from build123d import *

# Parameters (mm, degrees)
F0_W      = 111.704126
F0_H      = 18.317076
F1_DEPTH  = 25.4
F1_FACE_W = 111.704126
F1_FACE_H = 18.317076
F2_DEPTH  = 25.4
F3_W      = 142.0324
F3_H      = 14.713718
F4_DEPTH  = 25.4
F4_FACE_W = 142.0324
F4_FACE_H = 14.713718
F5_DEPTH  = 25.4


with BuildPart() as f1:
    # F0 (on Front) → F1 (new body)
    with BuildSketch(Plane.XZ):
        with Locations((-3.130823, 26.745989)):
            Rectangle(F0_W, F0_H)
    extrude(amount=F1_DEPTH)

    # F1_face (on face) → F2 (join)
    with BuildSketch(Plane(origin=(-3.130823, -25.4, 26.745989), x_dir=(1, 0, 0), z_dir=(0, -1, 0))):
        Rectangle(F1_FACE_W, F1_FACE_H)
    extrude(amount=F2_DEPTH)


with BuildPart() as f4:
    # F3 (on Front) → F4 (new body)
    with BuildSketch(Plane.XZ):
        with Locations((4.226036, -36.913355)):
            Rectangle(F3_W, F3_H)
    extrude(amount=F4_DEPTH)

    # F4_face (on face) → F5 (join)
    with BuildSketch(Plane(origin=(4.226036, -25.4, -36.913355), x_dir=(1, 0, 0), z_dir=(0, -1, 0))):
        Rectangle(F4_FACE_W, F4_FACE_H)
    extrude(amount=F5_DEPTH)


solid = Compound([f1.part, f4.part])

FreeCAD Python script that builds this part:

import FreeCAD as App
import Part
import Sketcher
Q = App.Units.Quantity


def add_polygon(sketch, points):
    """Adds a closed chain of lines whose ends are joined by coincident constraints."""
    first, n = sketch.GeometryCount, len(points)
    for a, b in zip(points, points[1:] + points[:1]):
        sketch.addGeometry(Part.LineSegment(App.Vector(*a, 0), App.Vector(*b, 0)), False)
    for i in range(n):
        sketch.addConstraint(Sketcher.Constraint("Coincident", first + i, 2, first + (i + 1) % n, 1))

doc = App.newDocument("Part")
body = doc.addObject("PartDesign::Body", "Body")

# Sketch on XZ plane
sketch1 = doc.addObject("Sketcher::SketchObject", "Sketch")
body.addObject(sketch1)
sketch1.AttachmentSupport = (doc.XZ_Plane, [""])
sketch1.MapMode = "FlatFace"
add_polygon(sketch1, [(-59, 36), (-59, 18), (53, 18), (53, 36)])  # lines 0-3
sketch1.addConstraint(Sketcher.Constraint("Vertical", 0))
sketch1.addConstraint(Sketcher.Constraint("Horizontal", 1))
sketch1.addConstraint(Sketcher.Constraint("Vertical", 2))
sketch1.addConstraint(Sketcher.Constraint("Horizontal", 3))
sketch1.addConstraint(Sketcher.Constraint("DistanceX", 1, 1, 1, 2, 111.704126))
sketch1.addConstraint(Sketcher.Constraint("DistanceY", 0, 2, 0, 1, 18.317076))
sketch1.addConstraint(Sketcher.Constraint("DistanceY", -1, 1, 0, 2, 17.587451))
sketch1.addConstraint(Sketcher.Constraint("DistanceX", -1, 1, 1, 2, 52.72124))
pad1 = doc.addObject("PartDesign::Pad", "Pad")
body.addObject(pad1)
pad1.Profile = sketch1
pad1.Length = Q("1 in")

# Sketch on XZ plane
sketch2 = doc.addObject("Sketcher::SketchObject", "Sketch001")
body.addObject(sketch2)
sketch2.AttachmentSupport = (doc.XZ_Plane, [""])
sketch2.MapMode = "FlatFace"
sketch2.AttachmentOffset = App.Placement(App.Vector(0, 0, 1 * 25.4), App.Rotation())
add_polygon(sketch2, [(-59, 36), (-59, 18), (53, 18), (53, 36)])  # lines 0-3
sketch2.addConstraint(Sketcher.Constraint("Vertical", 0))
sketch2.addConstraint(Sketcher.Constraint("Horizontal", 1))
sketch2.addConstraint(Sketcher.Constraint("Vertical", 2))
sketch2.addConstraint(Sketcher.Constraint("Horizontal", 3))
sketch2.addConstraint(Sketcher.Constraint("DistanceX", 1, 1, 1, 2, 111.704126))
sketch2.addConstraint(Sketcher.Constraint("DistanceY", 0, 2, 0, 1, 18.317076))
sketch2.addConstraint(Sketcher.Constraint("DistanceY", -1, 1, 0, 2, 17.587451))
sketch2.addConstraint(Sketcher.Constraint("DistanceX", -1, 1, 1, 2, 52.72124))
pad2 = doc.addObject("PartDesign::Pad", "Pad001")
body.addObject(pad2)
pad2.Profile = sketch2
pad2.Length = Q("1 in")
body2 = doc.addObject("PartDesign::Body", "Body001")

# Sketch on XZ plane
sketch3 = doc.addObject("Sketcher::SketchObject", "Sketch002")
body2.addObject(sketch3)
sketch3.AttachmentSupport = (doc.getObject("XZ_Plane001"), [""])
sketch3.MapMode = "FlatFace"
add_polygon(sketch3, [(-67, -30), (-67, -44), (75, -44), (75, -30)])  # lines 0-3
sketch3.addConstraint(Sketcher.Constraint("Vertical", 0))
sketch3.addConstraint(Sketcher.Constraint("Horizontal", 1))
sketch3.addConstraint(Sketcher.Constraint("Vertical", 2))
sketch3.addConstraint(Sketcher.Constraint("Horizontal", 3))
sketch3.addConstraint(Sketcher.Constraint("DistanceX", 1, 1, 1, 2, 142.0324))
sketch3.addConstraint(Sketcher.Constraint("DistanceY", 0, 2, 0, 1, 14.713718))
sketch3.addConstraint(Sketcher.Constraint("DistanceX", 0, 2, -1, 1, 66.790164))
sketch3.addConstraint(Sketcher.Constraint("DistanceY", 0, 2, -1, 1, 44.270214))
pad3 = doc.addObject("PartDesign::Pad", "Pad002")
body2.addObject(pad3)
pad3.Profile = sketch3
pad3.Length = Q("1 in")

# Sketch on XZ plane
sketch4 = doc.addObject("Sketcher::SketchObject", "Sketch003")
body2.addObject(sketch4)
sketch4.AttachmentSupport = (doc.getObject("XZ_Plane001"), [""])
sketch4.MapMode = "FlatFace"
sketch4.AttachmentOffset = App.Placement(App.Vector(0, 0, 1 * 25.4), App.Rotation())
add_polygon(sketch4, [(-67, -30), (-67, -44), (75, -44), (75, -30)])  # lines 0-3
sketch4.addConstraint(Sketcher.Constraint("Vertical", 0))
sketch4.addConstraint(Sketcher.Constraint("Horizontal", 1))
sketch4.addConstraint(Sketcher.Constraint("Vertical", 2))
sketch4.addConstraint(Sketcher.Constraint("Horizontal", 3))
sketch4.addConstraint(Sketcher.Constraint("DistanceX", 1, 1, 1, 2, 142.0324))
sketch4.addConstraint(Sketcher.Constraint("DistanceY", 0, 2, 0, 1, 14.713718))
sketch4.addConstraint(Sketcher.Constraint("DistanceX", 0, 2, -1, 1, 66.790164))
sketch4.addConstraint(Sketcher.Constraint("DistanceY", 0, 2, -1, 1, 44.270214))
pad4 = doc.addObject("PartDesign::Pad", "Pad003")
body2.addObject(pad4)
pad4.Profile = sketch4
pad4.Length = Q("1 in")

doc.recompute()
